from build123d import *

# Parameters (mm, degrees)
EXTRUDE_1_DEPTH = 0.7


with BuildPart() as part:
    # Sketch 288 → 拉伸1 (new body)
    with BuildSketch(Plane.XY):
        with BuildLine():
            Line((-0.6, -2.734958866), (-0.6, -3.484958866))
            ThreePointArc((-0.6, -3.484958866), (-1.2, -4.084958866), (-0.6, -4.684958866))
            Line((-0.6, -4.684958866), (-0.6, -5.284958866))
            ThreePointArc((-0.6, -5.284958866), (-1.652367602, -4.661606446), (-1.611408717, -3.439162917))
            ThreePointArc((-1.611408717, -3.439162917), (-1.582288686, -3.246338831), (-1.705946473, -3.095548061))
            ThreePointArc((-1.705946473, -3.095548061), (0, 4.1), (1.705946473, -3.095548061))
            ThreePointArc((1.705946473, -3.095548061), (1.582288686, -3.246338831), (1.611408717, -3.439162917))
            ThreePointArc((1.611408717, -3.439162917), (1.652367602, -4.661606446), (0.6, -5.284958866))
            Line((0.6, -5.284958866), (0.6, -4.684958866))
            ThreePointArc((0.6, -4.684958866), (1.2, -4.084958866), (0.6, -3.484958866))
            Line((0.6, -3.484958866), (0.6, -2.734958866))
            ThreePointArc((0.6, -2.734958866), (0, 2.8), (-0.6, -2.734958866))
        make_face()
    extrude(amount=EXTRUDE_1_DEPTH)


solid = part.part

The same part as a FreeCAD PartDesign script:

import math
import FreeCAD as App
import Part
import Sketcher

V = App.Vector
Q = App.Units.Quantity

doc = App.newDocument("Part")
params = doc.addObject("Spreadsheet::Sheet", "Params")
for row, (alias, value) in enumerate([
    ("sketch1_radius", "2.8 mm"),
    ("sketch1_radius2", "0.6 mm"),
    ("sketch1_radius3", "1.2 mm"),
    ("sketch1_radius4", "3.8 mm"),
    ("sketch1_radius5", "0.24 mm"),
    ("pad1_length", "0.7 mm"),
], start=1):
    params.set(f"A{row}", alias)
    params.set(f"B{row}", "=" + value)
    params.setAlias(f"B{row}", alias)

body = doc.addObject("PartDesign::Body", "Body")

sketch1 = body.newObject("Sketcher::SketchObject", "Sketch")
sketch1.AttachmentSupport = (doc.getObject("XY_Plane"), [""])
sketch1.MapMode = "FlatFace"
sketch1.addGeometry(Part.LineSegment(V(-0.6, -3.48, 0), V(-0.6, -2.73, 0)), False)
sketch1.addGeometry(Part.ArcOfCircle(Part.Circle(V(0, 0, 0), V(0, 0, 1), 2.8), math.radians(-78), math.radians(258)), False)
sketch1.addGeometry(Part.LineSegment(V(0.6, -2.73, 0), V(0.6, -3.48, 0)), False)
sketch1.addGeometry(Part.ArcOfCircle(Part.Circle(V(0.6, -4.08, 0), V(0, 0, 1), 0.6), math.radians(-90), math.radians(90)), False)
sketch1.addGeometry(Part.LineSegment(V(0.6, -4.68, 0), V(0.6, -5.28, 0)), False)
sketch1.addGeometry(Part.ArcOfCircle(Part.Circle(V(0.6, -4.08, 0), V(0, 0, 1), 1.2), math.radians(-90), math.radians(33)), False)
sketch1.addGeometry(Part.ArcOfCircle(Part.Circle(V(1.81, -3.31, 0), V(0, 0, 1), 0.24), math.radians(117), math.radians(213)), False)
sketch1.addGeometry(Part.ArcOfCircle(Part.Circle(V(0, 0.3, 0), V(0, 0, 1), 3.8), math.radians(-63), math.radians(243)), False)
sketch1.addGeometry(Part.ArcOfCircle(Part.Circle(V(-1.81, -3.31, 0), V(0, 0, 1), 0.24), math.radians(-33), math.radians(63)), False)
sketch1.addGeometry(Part.ArcOfCircle(Part.Circle(V(-0.6, -4.08, 0), V(0, 0, 1), 1.2), math.radians(147), math.radians(270)), False)
sketch1.addGeometry(Part.LineSegment(V(-0.6, -5.28, 0), V(-0.6, -4.68, 0)), False)
sketch1.addGeometry(Part.ArcOfCircle(Part.Circle(V(-0.6, -4.08, 0), V(0, 0, 1), 0.6), math.radians(90), math.radians(270)), False)
sketch1.addConstraint(Sketcher.Constraint("Coincident", 0, 2, 1, 2))
sketch1.addConstraint(Sketcher.Constraint("Coincident", 1, 1, 2, 1))
sketch1.addConstraint(Sketcher.Constraint("Coincident", 2, 2, 3, 2))
sketch1.addConstraint(Sketcher.Constraint("Coincident", 3, 1, 4, 1))
sketch1.addConstraint(Sketcher.Constraint("Coincident", 4, 2, 5, 1))
sketch1.addConstraint(Sketcher.Constraint("Tangent", 5, 2, 6, 2))
sketch1.addConstraint(Sketcher.Constraint("Tangent", 6, 1, 7, 1))
sketch1.addConstraint(Sketcher.Constraint("Tangent", 7, 2, 8, 2))
sketch1.addConstraint(Sketcher.Constraint("Tangent", 8, 1, 9, 1))
sketch1.addConstraint(Sketcher.Constraint("Coincident", 9, 2, 10, 1))
sketch1.addConstraint(Sketcher.Constraint("Coincident", 10, 2, 11, 2))
sketch1.addConstraint(Sketcher.Constraint("Coincident", 11, 1, 0, 1))
sketch1.addConstraint(Sketcher.Constraint("Vertical", 0))
sketch1.addConstraint(Sketcher.Constraint("Vertical", 2))
sketch1.addConstraint(Sketcher.Constraint("Vertical", 4))
sketch1.addConstraint(Sketcher.Constraint("Vertical", 10))
sketch1.addConstraint(Sketcher.Constraint("Coincident", 1, 3, -1, 1))
sketch1.addConstraint(Sketcher.Constraint("Coincident", 5, 3, 3, 3))
sketch1.addConstraint(Sketcher.Constraint("Coincident", 11, 3, 9, 3))
sketch1.addConstraint(Sketcher.Constraint("Equal", 6, 8))
sketch1.addConstraint(Sketcher.Constraint("Equal", 5, 9))
sketch1.addConstraint(Sketcher.Constraint("Equal", 3, 11))
sketch1.addConstraint(Sketcher.Constraint("Symmetric", 6, 3, 8, 3, -2))
sketch1.addConstraint(Sketcher.Constraint("Symmetric", 4, 2, 9, 2, -2))
sketch1.addConstraint(Sketcher.Constraint("Horizontal", 0, 2, 1, 1))
sketch1.addConstraint(Sketcher.Constraint("Vertical", 11, 3, 0, 2))
sketch1.addConstraint(Sketcher.Constraint("Vertical", 2, 2, 3, 1))
sketch1.addConstraint(Sketcher.Constraint("Radius", 1, Q("2.8 mm")))
sketch1.addConstraint(Sketcher.Constraint("Radius", 3, Q("0.6 mm")))
sketch1.addConstraint(Sketcher.Constraint("Radius", 5, Q("1.2 mm")))
sketch1.addConstraint(Sketcher.Constraint("Radius", 7, Q("3.8 mm")))
sketch1.addConstraint(Sketcher.Constraint("Radius", 6, Q("0.24 mm")))
sketch1.addConstraint(Sketcher.Constraint("DistanceY", 0, 1, 0, 2, Q("0.75 mm")))
sketch1.addConstraint(Sketcher.Constraint("DistanceX", -1, 1, 3, 3, Q("0.6 mm")))
sketch1.addConstraint(Sketcher.Constraint("DistanceY", -1, 1, 7, 3, Q("0.3 mm")))
sketch1.setExpression("Constraints[27]", "Params.sketch1_radius")
sketch1.setExpression("Constraints[28]", "Params.sketch1_radius2")
sketch1.setExpression("Constraints[29]", "Params.sketch1_radius3")
sketch1.setExpression("Constraints[30]", "Params.sketch1_radius4")
sketch1.setExpression("Constraints[31]", "Params.sketch1_radius5")
pad1 = body.newObject("PartDesign::Pad", "Pad")
pad1.Profile = sketch1
pad1.setExpression("Length", "Params.pad1_length")

doc.recompute()
